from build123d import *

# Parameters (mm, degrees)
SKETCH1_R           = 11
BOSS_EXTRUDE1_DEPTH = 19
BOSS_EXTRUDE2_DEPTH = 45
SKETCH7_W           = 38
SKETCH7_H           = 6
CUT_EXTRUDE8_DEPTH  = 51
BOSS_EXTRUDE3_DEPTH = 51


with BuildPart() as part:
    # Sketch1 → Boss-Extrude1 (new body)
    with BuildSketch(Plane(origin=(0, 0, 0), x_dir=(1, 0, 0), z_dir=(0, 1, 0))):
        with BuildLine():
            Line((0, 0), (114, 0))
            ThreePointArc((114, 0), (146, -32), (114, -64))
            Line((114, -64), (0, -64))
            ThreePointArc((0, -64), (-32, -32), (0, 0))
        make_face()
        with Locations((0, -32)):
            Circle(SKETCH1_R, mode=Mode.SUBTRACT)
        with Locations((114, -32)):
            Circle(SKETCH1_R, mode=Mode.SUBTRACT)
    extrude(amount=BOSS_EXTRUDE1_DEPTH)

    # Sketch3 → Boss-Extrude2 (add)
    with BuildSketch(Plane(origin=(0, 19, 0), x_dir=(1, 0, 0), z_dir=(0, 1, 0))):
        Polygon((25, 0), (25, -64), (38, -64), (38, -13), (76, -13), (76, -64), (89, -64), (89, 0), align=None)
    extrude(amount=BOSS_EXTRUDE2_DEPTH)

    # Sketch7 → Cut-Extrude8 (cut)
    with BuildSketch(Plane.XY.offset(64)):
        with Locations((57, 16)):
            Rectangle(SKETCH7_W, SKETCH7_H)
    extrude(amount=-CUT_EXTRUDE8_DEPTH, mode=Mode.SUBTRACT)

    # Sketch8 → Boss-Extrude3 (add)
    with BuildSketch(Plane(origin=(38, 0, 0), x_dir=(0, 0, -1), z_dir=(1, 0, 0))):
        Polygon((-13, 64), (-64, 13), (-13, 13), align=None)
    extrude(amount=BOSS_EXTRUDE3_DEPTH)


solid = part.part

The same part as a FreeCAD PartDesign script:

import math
import FreeCAD as App
import Part
import Sketcher

V = App.Vector
Q = App.Units.Quantity


def add_polygon(sketch, points):
    """Adds a closed chain of lines whose ends are joined by coincident constraints."""
    first, n = sketch.GeometryCount, len(points)
    for a, b in zip(points, points[1:] + points[:1]):
        sketch.addGeometry(Part.LineSegment(App.Vector(*a, 0), App.Vector(*b, 0)), False)
    for i in range(n):
        sketch.addConstraint(Sketcher.Constraint("Coincident", first + i, 2, first + (i + 1) % n, 1))

doc = App.newDocument("Part")
params = doc.addObject("Spreadsheet::Sheet", "Params")
for row, (alias, value) in enumerate([
    ("sketch1_diameter", "22 mm"),
    ("sketch1_radius", "32 mm"),
    ("sketch1_width", "114 mm"),
    ("pad1_length", "19 mm"),
    ("sketch2_width", "13 mm"),
    ("sketch2_width2", "38 mm"),
    ("sketch2_height", "51 mm"),
    ("pad2_length", "45 mm"),
    ("sketch3_width", "38 mm"),
    ("sketch3_height", "6 mm"),
    ("pocket1_length", "51 mm"),
    ("sketch4_width", "51 mm"),
    ("pad3_length", "51 mm"),
], start=1):
    params.set(f"A{row}", alias)
    params.set(f"B{row}", "=" + value)
    params.setAlias(f"B{row}", alias)

body = doc.addObject("PartDesign::Body", "Body")

sketch1 = doc.addObject("Sketcher::SketchObject", "Sketch")
body.addObject(sketch1)
sketch1.AttachmentSupport = (doc.XZ_Plane, [""])
sketch1.MapMode = "FlatFace"
sketch1.addGeometry(Part.LineSegment(V(114, 0, 0), V(0, 0, 0)), False)
sketch1.addGeometry(Part.ArcOfCircle(Part.Circle(V(0, 32, 0), V(0, 0, 1), 32), math.radians(90), math.radians(270)), False)
sketch1.addGeometry(Part.LineSegment(V(0, 64, 0), V(114, 64, 0)), False)
sketch1.addGeometry(Part.ArcOfCircle(Part.Circle(V(114, 32, 0), V(0, 0, 1), 32), math.radians(-90), math.radians(90)), False)
sketch1.addGeometry(Part.Circle(V(114, 32, 0), V(0, 0, 1), 11), False)
sketch1.addGeometry(Part.Circle(V(0, 32, 0), V(0, 0, 1), 11), False)
sketch1.addConstraint(Sketcher.Constraint("Tangent", 0, 2, 1, 2))
sketch1.addConstraint(Sketcher.Constraint("Tangent", 1, 1, 2, 1))
sketch1.addConstraint(Sketcher.Constraint("Tangent", 2, 2, 3, 2))
sketch1.addConstraint(Sketcher.Constraint("Tangent", 3, 1, 0, 1))
sketch1.addConstraint(Sketcher.Constraint("Horizontal", 0))
sketch1.addConstraint(Sketcher.Constraint("Horizontal", 2))
sketch1.addConstraint(Sketcher.Constraint("Coincident", 0, 2, -1, 1))
sketch1.addConstraint(Sketcher.Constraint("Coincident", 4, 3, 3, 3))
sketch1.addConstraint(Sketcher.Constraint("Coincident", 5, 3, 1, 3))
sketch1.addConstraint(Sketcher.Constraint("Equal", 4, 5))
sketch1.addConstraint(Sketcher.Constraint("Diameter", 4, Q("22 mm")))
sketch1.addConstraint(Sketcher.Constraint("Radius", 1, Q("32 mm")))
sketch1.addConstraint(Sketcher.Constraint("DistanceX", 0, 2, 0, 1, Q("114 mm")))
sketch1.setExpression("Constraints[10]", "Params.sketch1_diameter")
sketch1.setExpression("Constraints[11]", "Params.sketch1_radius")
sketch1.setExpression("Constraints[12]", "Params.sketch1_width")
pad1 = doc.addObject("PartDesign::Pad", "Pad")
body.addObject(pad1)
pad1.Profile = sketch1
pad1.setExpression("Length", "Params.pad1_length")
pad1.Reversed = True

sketch2 = doc.addObject("Sketcher::SketchObject", "Sketch001")
body.addObject(sketch2)
sketch2.AttachmentSupport = (doc.XZ_Plane, [""])
sketch2.MapMode = "FlatFace"
sketch2.AttachmentOffset = App.Placement(V(0, 0, -19), App.Rotation())
add_polygon(sketch2, [(25, 0), (25, 64), (38, 64), (38, 13), (76, 13), (76, 64), (89, 64), (89, 0)])
sketch2.addConstraint(Sketcher.Constraint("Vertical", 0))
sketch2.addConstraint(Sketcher.Constraint("Horizontal", 1))
sketch2.addConstraint(Sketcher.Constraint("Vertical", 2))
sketch2.addConstraint(Sketcher.Constraint("Horizontal", 3))
sketch2.addConstraint(Sketcher.Constraint("Vertical", 4))
sketch2.addConstraint(Sketcher.Constraint("Horizontal", 5))
sketch2.addConstraint(Sketcher.Constraint("Vertical", 6))
sketch2.addConstraint(Sketcher.Constraint("Horizontal", 7))
sketch2.addConstraint(Sketcher.Constraint("PointOnObject", 6, 2, -1))
sketch2.addConstraint(Sketcher.Constraint("Horizontal", 1, 2, 4, 2))
sketch2.addConstraint(Sketcher.Constraint("Equal", 1, 5))
sketch2.addConstraint(Sketcher.Constraint("Equal", 7, 0))
sketch2.addConstraint(Sketcher.Constraint("DistanceX", 1, 1, 1, 2, Q("13 mm")))
sketch2.addConstraint(Sketcher.Constraint("DistanceX", 3, 1, 3, 2, Q("38 mm")))
sketch2.addConstraint(Sketcher.Constraint("DistanceY", 2, 2, 2, 1, Q("51 mm")))
sketch2.addConstraint(Sketcher.Constraint("DistanceX", -1, 1, 0, 2, Q("25 mm")))
sketch2.setExpression("Constraints[20]", "Params.sketch2_width")
sketch2.setExpression("Constraints[21]", "Params.sketch2_width2")
sketch2.setExpression("Constraints[22]", "Params.sketch2_height")
pad2 = doc.addObject("PartDesign::Pad", "Pad001")
body.addObject(pad2)
pad2.Profile = sketch2
pad2.setExpression("Length", "Params.pad2_length")
pad2.Reversed = True

sketch3 = doc.addObject("Sketcher::SketchObject", "Sketch002")
body.addObject(sketch3)
sketch3.AttachmentSupport = (doc.XY_Plane, [""])
sketch3.MapMode = "FlatFace"
sketch3.AttachmentOffset = App.Placement(V(0, 0, 64), App.Rotation())
add_polygon(sketch3, [(38, 19), (38, 13), (76, 13), (76, 19)])
sketch3.addConstraint(Sketcher.Constraint("Vertical", 0))
sketch3.addConstraint(Sketcher.Constraint("Horizontal", 1))
sketch3.addConstraint(Sketcher.Constraint("Vertical", 2))
sketch3.addConstraint(Sketcher.Constraint("Horizontal", 3))
sketch3.addConstraint(Sketcher.Constraint("DistanceX", 1, 1, 1, 2, Q("38 mm")))
sketch3.addConstraint(Sketcher.Constraint("DistanceY", 0, 2, 0, 1, Q("6 mm")))
sketch3.addConstraint(Sketcher.Constraint("DistanceX", -1, 1, 0, 2, Q("38 mm")))
sketch3.addConstraint(Sketcher.Constraint("DistanceY", -1, 1, 0, 2, Q("13 mm")))
sketch3.setExpression("Constraints[8]", "Params.sketch3_width")
sketch3.setExpression("Constraints[9]", "Params.sketch3_height")
pocket1 = doc.addObject("PartDesign::Pocket", "Pocket")
body.addObject(pocket1)
pocket1.Profile = sketch3
pocket1.setExpression("Length", "Params.pocket1_length")

sketch4 = doc.addObject("Sketcher::SketchObject", "Sketch003")
body.addObject(sketch4)
sketch4.AttachmentSupport = (doc.YZ_Plane, [""])
sketch4.MapMode = "FlatFace"
sketch4.AttachmentOffset = App.Placement(V(0, 0, 38), App.Rotation())
add_polygon(sketch4, [(64, 13), (13, 64), (13, 13)])
sketch4.addConstraint(Sketcher.Constraint("Vertical", 1))
sketch4.addConstraint(Sketcher.Constraint("Horizontal", 2))
sketch4.addConstraint(Sketcher.Constraint("Equal", 2, 1))
sketch4.addConstraint(Sketcher.Constraint("DistanceX", 2, 1, 2, 2, Q("51 mm")))
sketch4.addConstraint(Sketcher.Constraint("DistanceX", -1, 1, 0, 2, Q("13 mm")))
sketch4.addConstraint(Sketcher.Constraint("DistanceY", -1, 1, 0, 2, Q("64 mm")))
sketch4.setExpression("Constraints[6]", "Params.sketch4_width")
pad3 = doc.addObject("PartDesign::Pad", "Pad002")
body.addObject(pad3)
pad3.Profile = sketch4
pad3.setExpression("Length", "Params.pad3_length")

doc.recompute()
